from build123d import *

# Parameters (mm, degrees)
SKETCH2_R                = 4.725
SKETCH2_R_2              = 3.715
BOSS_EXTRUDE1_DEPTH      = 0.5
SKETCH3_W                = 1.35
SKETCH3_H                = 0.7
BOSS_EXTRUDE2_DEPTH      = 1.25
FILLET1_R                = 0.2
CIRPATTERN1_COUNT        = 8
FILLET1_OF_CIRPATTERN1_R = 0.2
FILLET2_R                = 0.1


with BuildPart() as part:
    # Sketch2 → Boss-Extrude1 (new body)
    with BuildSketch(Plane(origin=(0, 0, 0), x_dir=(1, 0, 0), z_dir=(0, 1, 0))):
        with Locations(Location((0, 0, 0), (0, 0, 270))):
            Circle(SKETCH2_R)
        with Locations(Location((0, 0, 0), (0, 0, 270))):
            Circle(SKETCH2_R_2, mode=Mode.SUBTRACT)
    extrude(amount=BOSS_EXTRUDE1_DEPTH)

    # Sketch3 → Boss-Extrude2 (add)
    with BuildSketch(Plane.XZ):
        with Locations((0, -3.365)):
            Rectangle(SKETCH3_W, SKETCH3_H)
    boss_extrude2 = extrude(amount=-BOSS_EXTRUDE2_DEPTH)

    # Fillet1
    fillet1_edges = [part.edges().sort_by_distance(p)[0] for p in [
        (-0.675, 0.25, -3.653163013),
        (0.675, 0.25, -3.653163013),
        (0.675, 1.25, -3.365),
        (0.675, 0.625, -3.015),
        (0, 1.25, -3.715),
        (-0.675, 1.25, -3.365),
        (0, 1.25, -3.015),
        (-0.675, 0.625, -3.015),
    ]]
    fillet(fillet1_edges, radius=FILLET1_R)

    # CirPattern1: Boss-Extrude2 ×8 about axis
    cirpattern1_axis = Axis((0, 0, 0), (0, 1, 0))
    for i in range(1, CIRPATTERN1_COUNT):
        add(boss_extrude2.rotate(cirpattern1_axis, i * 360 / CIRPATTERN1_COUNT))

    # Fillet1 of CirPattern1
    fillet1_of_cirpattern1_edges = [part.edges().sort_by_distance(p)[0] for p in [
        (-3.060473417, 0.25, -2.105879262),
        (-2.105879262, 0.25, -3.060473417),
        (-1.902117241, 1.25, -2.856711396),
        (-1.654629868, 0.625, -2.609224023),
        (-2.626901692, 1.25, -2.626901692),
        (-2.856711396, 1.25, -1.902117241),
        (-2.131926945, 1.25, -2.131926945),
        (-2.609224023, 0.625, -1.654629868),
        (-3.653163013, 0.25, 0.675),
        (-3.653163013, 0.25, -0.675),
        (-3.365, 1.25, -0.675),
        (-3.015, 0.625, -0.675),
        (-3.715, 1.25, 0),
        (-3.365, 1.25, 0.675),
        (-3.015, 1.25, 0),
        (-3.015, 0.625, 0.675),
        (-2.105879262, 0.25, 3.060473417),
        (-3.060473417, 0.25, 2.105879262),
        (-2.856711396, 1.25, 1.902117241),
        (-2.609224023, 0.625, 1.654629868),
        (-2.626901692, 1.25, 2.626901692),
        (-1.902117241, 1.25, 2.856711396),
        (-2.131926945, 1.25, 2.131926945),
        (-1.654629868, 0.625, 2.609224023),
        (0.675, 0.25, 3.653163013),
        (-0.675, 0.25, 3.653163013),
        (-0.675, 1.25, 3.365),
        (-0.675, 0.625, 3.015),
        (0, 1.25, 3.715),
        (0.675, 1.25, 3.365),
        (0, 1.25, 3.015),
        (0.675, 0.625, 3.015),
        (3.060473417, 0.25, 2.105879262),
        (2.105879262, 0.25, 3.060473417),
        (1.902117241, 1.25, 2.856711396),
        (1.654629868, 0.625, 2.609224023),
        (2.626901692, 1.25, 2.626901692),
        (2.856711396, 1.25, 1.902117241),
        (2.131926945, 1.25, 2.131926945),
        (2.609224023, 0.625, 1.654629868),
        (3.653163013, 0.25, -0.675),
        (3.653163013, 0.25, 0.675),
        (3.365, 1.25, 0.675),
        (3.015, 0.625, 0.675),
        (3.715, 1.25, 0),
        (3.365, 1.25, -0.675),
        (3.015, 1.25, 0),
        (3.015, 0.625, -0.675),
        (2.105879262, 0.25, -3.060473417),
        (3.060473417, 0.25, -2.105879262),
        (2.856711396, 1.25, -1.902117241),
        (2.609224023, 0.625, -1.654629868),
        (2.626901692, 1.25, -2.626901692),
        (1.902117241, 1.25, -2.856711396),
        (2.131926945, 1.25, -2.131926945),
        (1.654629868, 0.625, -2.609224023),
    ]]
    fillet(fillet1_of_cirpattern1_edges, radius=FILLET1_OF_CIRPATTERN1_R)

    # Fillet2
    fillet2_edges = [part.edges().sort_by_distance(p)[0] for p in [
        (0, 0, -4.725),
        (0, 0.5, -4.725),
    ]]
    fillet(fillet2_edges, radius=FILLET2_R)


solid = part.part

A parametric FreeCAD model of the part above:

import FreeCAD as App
import Part
import Sketcher
Q = App.Units.Quantity


def edges_at(feature, points):
    """Names of the edges that pass closest to the given points."""
    edges = feature.Shape.Edges
    near = lambda p: min(range(len(edges)), key=lambda i: edges[i].distToShape(Part.Vertex(*p))[0])
    return sorted({f"Edge{near(p) + 1}" for p in points})


def add_polygon(sketch, points):
    """Adds a closed chain of lines whose ends are joined by coincident constraints."""
    first, n = sketch.GeometryCount, len(points)
    for a, b in zip(points, points[1:] + points[:1]):
        sketch.addGeometry(Part.LineSegment(App.Vector(*a, 0), App.Vector(*b, 0)), False)
    for i in range(n):
        sketch.addConstraint(Sketcher.Constraint("Coincident", first + i, 2, first + (i + 1) % n, 1))

doc = App.newDocument("Part")
params = doc.addObject("Spreadsheet::Sheet", "Params")
for row, (alias, value) in enumerate([
    ("sketch1_diameter", "9.45 mm"),
    ("sketch1_diameter2", "7.43 mm"),
    ("pad1_length", "0.5 mm"),
    ("sketch2_height", "0.7 mm"),
    ("sketch2_width", "1.35 mm"),
    ("pad2_length", "1.25 mm"),
    ("fillet_radius", "0.2 mm"),
    ("fillet2_radius", "0.2 mm"),
    ("fillet3_radius", "0.1 mm"),
], start=1):
    params.set(f"A{row}", alias)
    params.set(f"B{row}", "=" + value)
    params.setAlias(f"B{row}", alias)

body = doc.addObject("PartDesign::Body", "Body")

# Sketch on XZ plane
sketch1 = body.newObject("Sketcher::SketchObject", "Sketch")
sketch1.AttachmentSupport = (doc.getObject("XZ_Plane"), [""])
sketch1.MapMode = "FlatFace"
sketch1.addGeometry([
    Part.Circle(App.Vector(0, 0, 0), App.Vector(0, 0, 1), 4.725),
    Part.Circle(App.Vector(0, 0, 0), App.Vector(0, 0, 1), 3.715),
], False)
sketch1.addConstraint([
    Sketcher.Constraint("Coincident", 0, 3, -1, 1),
    Sketcher.Constraint("Coincident", 1, 3, -1, 1),
    Sketcher.Constraint("Diameter", 0, Q("9.45 mm")),
    Sketcher.Constraint("Diameter", 1, Q("7.43 mm")),
])
sketch1.setExpression("Constraints[2]", "Params.sketch1_diameter")
sketch1.setExpression("Constraints[3]", "Params.sketch1_diameter2")
pad1 = body.newObject("PartDesign::Pad", "Pad")
pad1.Profile = sketch1
pad1.setExpression("Length", "Params.pad1_length")
pad1.Reversed = True

# Sketch on XZ plane
sketch2 = body.newObject("Sketcher::SketchObject", "Sketch001")
sketch2.AttachmentSupport = (doc.getObject("XZ_Plane"), [""])
sketch2.MapMode = "FlatFace"
add_polygon(sketch2, [(-0.675, -3.015), (-0.675, -3.715), (0.675, -3.715), (0.675, -3.015)])  # lines 0-3
sketch2.addConstraint([
    Sketcher.Constraint("Vertical", 0),
    Sketcher.Constraint("Horizontal", 1),
    Sketcher.Constraint("Vertical", 2),
    Sketcher.Constraint("Horizontal", 3),
    Sketcher.Constraint("DistanceY", 0, 2, 0, 1, Q("0.7 mm")),
    Sketcher.Constraint("DistanceX", 1, 1, 1, 2, Q("1.35 mm")),
    Sketcher.Constraint("DistanceX", 0, 2, -1, 1, Q("0.675 mm")),
    Sketcher.Constraint("DistanceY", 0, 2, -1, 1, Q("3.715 mm")),
])
sketch2.setExpression("Constraints[8]", "Params.sketch2_height")
sketch2.setExpression("Constraints[9]", "Params.sketch2_width")
pad2 = body.newObject("PartDesign::Pad", "Pad001")
pad2.Profile = sketch2
pad2.setExpression("Length", "Params.pad2_length")
pad2.Reversed = True
doc.recompute()

fillet = body.newObject("PartDesign::Fillet", "Fillet")
fillet.Base = (pad2, edges_at(pad2, [
    (-0.675, 0.25, -3.653),
    (0.675, 0.25, -3.653),
    (0.675, 1.25, -3.365),
    (0.675, 0.625, -3.015),
    (0, 1.25, -3.715),
    (-0.675, 1.25, -3.365),
    (0, 1.25, -3.015),
    (-0.675, 0.625, -3.015),
]))
fillet.setExpression("Radius", "Params.fillet_radius")
doc.recompute()

polarpattern = body.newObject("PartDesign::PolarPattern", "PolarPattern")
polarpattern.Originals = [pad2]
polarpattern.Axis = (doc.getObject("Y_Axis"), [""])
polarpattern.Angle = 360
polarpattern.Occurrences = 8
body.Tip = polarpattern
doc.recompute()

fillet2 = body.newObject("PartDesign::Fillet", "Fillet001")
fillet2.Base = (polarpattern, edges_at(polarpattern, [
    (-3.06, 0.25, -2.106),
    (-2.106, 0.25, -3.06),
    (-1.902, 1.25, -2.857),
    (-1.655, 0.625, -2.609),
    (-2.627, 1.25, -2.627),
    (-2.857, 1.25, -1.902),
    (-2.132, 1.25, -2.132),
    (-2.609, 0.625, -1.655),
    (-3.653, 0.25, 0.675),
    (-3.653, 0.25, -0.675),
    (-3.365, 1.25, -0.675),
    (-3.015, 0.625, -0.675),
    (-3.715, 1.25, 0),
    (-3.365, 1.25, 0.675),
    (-3.015, 1.25, 0),
    (-3.015, 0.625, 0.675),
    (-2.106, 0.25, 3.06),
    (-3.06, 0.25, 2.106),
    (-2.857, 1.25, 1.902),
    (-2.609, 0.625, 1.655),
    (-2.627, 1.25, 2.627),
    (-1.902, 1.25, 2.857),
    (-2.132, 1.25, 2.132),
    (-1.655, 0.625, 2.609),
    (0.675, 0.25, 3.653),
    (-0.675, 0.25, 3.653),
    (-0.675, 1.25, 3.365),
    (-0.675, 0.625, 3.015),
    (0, 1.25, 3.715),
    (0.675, 1.25, 3.365),
    (0, 1.25, 3.015),
    (0.675, 0.625, 3.015),
    (3.06, 0.25, 2.106),
    (2.106, 0.25, 3.06),
    (1.902, 1.25, 2.857),
    (1.655, 0.625, 2.609),
    (2.627, 1.25, 2.627),
    (2.857, 1.25, 1.902),
    (2.132, 1.25, 2.132),
    (2.609, 0.625, 1.655),
    (3.653, 0.25, -0.675),
    (3.653, 0.25, 0.675),
    (3.365, 1.25, 0.675),
    (3.015, 0.625, 0.675),
    (3.715, 1.25, 0),
    (3.365, 1.25, -0.675),
    (3.015, 1.25, 0),
    (3.015, 0.625, -0.675),
    (2.106, 0.25, -3.06),
    (3.06, 0.25, -2.106),
    (2.857, 1.25, -1.902),
    (2.609, 0.625, -1.655),
    (2.627, 1.25, -2.627),
    (1.902, 1.25, -2.857),
    (2.132, 1.25, -2.132),
    (1.655, 0.625, -2.609),
]))
fillet2.setExpression("Radius", "Params.fillet2_radius")
doc.recompute()

fillet3 = body.newObject("PartDesign::Fillet", "Fillet002")
fillet3.Base = (fillet2, edges_at(fillet2, [(0, 0, -4.725), (0, 0.5, -4.725)]))
fillet3.setExpression("Radius", "Params.fillet3_radius")

doc.recompute()
